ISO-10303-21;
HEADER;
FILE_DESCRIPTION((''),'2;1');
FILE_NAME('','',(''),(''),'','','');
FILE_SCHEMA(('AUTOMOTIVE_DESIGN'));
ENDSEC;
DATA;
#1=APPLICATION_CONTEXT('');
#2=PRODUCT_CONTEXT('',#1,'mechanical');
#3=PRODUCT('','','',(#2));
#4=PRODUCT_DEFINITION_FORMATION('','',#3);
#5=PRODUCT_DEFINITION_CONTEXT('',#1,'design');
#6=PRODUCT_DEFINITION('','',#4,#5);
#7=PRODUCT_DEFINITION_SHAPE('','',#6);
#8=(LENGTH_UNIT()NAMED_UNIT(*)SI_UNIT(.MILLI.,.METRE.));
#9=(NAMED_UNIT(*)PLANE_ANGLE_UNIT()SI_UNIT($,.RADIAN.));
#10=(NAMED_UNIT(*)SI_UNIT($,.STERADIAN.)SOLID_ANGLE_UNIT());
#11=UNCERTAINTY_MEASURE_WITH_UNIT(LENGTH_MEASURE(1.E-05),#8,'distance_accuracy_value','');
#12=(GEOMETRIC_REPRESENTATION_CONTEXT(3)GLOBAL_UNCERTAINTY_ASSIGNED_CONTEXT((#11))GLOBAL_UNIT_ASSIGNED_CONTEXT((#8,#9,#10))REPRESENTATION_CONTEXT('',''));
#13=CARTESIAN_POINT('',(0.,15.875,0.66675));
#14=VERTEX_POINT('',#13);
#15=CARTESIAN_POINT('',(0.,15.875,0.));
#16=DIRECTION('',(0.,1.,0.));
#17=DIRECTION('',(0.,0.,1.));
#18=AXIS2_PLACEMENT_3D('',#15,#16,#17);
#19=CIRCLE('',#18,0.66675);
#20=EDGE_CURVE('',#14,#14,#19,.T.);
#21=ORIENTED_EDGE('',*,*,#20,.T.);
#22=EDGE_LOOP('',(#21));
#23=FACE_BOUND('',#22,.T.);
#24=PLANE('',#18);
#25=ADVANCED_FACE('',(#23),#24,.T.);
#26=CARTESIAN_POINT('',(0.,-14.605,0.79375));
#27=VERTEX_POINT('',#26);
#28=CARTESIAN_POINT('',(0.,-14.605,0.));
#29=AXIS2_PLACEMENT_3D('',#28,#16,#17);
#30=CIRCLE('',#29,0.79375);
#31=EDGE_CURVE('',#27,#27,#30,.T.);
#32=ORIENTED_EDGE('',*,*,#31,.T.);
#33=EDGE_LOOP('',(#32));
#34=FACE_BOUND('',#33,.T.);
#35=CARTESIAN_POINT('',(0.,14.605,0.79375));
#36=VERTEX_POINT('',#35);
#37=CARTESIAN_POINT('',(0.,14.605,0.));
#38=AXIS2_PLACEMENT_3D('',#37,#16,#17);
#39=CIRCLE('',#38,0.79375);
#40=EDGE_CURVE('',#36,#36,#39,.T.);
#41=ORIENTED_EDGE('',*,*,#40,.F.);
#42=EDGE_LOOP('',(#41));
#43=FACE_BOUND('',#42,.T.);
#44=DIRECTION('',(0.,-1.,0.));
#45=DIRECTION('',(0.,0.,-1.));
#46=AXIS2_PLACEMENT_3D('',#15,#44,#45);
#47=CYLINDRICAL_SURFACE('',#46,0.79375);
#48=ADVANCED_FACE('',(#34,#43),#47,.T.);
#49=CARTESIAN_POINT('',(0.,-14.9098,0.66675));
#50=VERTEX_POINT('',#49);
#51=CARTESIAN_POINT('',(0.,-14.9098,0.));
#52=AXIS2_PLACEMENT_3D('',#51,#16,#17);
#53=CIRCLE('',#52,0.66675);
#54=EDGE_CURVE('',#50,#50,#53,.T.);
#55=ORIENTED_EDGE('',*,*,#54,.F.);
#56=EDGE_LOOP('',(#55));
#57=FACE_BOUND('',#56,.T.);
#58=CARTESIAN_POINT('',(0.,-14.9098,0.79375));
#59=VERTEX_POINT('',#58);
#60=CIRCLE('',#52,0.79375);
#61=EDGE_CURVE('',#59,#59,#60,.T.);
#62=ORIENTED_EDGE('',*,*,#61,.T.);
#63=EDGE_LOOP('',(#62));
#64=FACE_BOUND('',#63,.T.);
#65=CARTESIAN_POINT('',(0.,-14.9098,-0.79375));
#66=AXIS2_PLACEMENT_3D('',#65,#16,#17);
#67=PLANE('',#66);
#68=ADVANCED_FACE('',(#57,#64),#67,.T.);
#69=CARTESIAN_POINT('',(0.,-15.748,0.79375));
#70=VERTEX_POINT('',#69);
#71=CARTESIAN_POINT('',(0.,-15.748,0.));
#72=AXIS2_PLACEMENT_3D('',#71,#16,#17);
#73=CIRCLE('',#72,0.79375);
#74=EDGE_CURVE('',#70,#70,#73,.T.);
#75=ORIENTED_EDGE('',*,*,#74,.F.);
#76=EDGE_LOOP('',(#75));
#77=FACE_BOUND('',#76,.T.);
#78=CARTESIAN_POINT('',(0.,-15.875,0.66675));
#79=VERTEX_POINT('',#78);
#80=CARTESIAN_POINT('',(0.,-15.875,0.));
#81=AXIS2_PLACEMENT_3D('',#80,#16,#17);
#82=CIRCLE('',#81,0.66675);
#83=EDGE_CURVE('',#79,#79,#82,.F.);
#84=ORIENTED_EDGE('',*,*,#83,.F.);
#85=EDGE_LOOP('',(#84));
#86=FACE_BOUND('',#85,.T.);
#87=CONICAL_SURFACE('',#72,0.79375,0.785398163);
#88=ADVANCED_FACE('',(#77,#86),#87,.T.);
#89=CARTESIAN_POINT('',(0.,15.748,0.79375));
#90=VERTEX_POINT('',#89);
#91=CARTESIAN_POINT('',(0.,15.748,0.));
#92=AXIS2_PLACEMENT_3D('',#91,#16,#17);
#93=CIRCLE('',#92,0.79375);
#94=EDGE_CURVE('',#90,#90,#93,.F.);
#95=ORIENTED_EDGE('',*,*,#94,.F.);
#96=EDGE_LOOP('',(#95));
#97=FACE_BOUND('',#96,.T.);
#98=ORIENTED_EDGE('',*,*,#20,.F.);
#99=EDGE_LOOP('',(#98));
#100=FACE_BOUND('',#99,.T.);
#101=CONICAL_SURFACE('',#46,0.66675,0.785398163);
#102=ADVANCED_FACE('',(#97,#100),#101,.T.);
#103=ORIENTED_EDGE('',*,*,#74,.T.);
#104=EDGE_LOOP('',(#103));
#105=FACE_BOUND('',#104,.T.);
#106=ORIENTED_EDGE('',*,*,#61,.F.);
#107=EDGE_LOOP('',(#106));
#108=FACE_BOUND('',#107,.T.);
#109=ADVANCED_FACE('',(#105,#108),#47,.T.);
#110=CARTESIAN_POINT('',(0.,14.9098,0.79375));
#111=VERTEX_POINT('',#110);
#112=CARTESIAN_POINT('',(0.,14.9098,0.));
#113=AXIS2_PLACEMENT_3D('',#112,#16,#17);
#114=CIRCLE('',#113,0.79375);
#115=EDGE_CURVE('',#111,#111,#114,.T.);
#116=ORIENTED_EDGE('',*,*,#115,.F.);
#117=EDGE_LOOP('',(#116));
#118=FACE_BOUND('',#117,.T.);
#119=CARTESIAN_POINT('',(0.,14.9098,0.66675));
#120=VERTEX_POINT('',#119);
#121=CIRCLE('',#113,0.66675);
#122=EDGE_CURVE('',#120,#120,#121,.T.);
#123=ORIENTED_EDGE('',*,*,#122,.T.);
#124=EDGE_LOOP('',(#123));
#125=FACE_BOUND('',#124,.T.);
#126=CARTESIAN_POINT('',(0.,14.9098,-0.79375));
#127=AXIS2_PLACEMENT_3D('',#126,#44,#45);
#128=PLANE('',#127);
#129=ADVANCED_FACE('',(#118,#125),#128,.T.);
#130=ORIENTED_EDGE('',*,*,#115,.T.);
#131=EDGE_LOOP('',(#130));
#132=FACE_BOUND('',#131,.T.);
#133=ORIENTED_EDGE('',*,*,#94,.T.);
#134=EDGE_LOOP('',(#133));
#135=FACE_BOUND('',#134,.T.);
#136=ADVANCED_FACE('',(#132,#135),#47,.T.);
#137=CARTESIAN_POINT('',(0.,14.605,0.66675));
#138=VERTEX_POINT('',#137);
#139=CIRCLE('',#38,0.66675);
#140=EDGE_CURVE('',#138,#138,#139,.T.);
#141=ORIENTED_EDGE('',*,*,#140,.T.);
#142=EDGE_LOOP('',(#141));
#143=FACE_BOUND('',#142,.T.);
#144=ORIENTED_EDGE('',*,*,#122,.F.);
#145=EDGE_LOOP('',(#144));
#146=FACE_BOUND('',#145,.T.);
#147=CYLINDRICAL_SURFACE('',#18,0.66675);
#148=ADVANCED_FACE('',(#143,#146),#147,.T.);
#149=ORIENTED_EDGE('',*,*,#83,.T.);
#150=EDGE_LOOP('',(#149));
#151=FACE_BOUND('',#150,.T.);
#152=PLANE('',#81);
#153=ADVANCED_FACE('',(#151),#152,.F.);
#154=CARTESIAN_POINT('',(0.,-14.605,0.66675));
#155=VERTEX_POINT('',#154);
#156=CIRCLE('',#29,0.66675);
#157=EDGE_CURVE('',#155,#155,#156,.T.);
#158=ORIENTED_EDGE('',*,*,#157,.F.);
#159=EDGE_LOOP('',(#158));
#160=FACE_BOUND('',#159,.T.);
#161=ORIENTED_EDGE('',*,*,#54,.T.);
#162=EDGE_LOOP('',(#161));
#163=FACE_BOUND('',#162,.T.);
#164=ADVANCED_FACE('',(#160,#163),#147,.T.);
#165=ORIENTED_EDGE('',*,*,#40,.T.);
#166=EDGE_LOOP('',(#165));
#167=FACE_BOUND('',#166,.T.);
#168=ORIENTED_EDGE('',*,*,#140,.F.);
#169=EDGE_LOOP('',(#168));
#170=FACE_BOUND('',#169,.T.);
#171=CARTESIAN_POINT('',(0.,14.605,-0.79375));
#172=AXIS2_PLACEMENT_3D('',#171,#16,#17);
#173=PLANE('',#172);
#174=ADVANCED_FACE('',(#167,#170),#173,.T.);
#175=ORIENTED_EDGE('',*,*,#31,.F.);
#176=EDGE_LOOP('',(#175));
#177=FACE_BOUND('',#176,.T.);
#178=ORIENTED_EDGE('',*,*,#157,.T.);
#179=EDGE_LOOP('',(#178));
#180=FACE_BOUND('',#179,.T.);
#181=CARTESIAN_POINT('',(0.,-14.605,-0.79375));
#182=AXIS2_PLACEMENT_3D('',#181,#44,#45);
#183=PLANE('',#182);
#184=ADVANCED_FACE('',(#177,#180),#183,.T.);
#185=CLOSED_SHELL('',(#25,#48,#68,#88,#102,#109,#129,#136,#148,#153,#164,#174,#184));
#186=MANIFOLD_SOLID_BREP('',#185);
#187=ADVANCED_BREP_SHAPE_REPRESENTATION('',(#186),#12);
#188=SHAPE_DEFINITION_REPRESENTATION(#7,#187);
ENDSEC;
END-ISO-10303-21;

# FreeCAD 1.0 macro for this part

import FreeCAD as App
import Part
import Sketcher

V = App.Vector
Q = App.Units.Quantity


def edges_at(feature, points):
    """Names of the edges that pass closest to the given points."""
    edges = feature.Shape.Edges
    near = lambda p: min(range(len(edges)), key=lambda i: edges[i].distToShape(Part.Vertex(*p))[0])
    return sorted({f"Edge{near(p) + 1}" for p in points})


def add_polygon(sketch, points):
    """Adds a closed chain of lines whose ends are joined by coincident constraints."""
    first, n = sketch.GeometryCount, len(points)
    for a, b in zip(points, points[1:] + points[:1]):
        sketch.addGeometry(Part.LineSegment(App.Vector(*a, 0), App.Vector(*b, 0)), False)
    for i in range(n):
        sketch.addConstraint(Sketcher.Constraint("Coincident", first + i, 2, first + (i + 1) % n, 1))

doc = App.newDocument("Part")
body = doc.addObject("PartDesign::Body", "Body")

sketch1 = body.newObject("Sketcher::SketchObject", "Sketch")
sketch1.AttachmentSupport = (doc.getObject("XZ_Plane"), [""])
sketch1.MapMode = "FlatFace"
sketch1.addGeometry(Part.Circle(V(0, 0, 0), V(0, 0, 1), 0.8), False)
sketch1.addConstraint([
    Sketcher.Constraint("Coincident", 0, 3, -1, 1),
    Sketcher.Constraint("Diameter", 0, Q("0.0625 in")),
])
pad1 = body.newObject("PartDesign::Pad", "Pad")
pad1.Profile = sketch1
pad1.Length = Q("1.25 in")
pad1.Midplane = True

sketch2 = body.newObject("Sketcher::SketchObject", "Sketch001")
sketch2.AttachmentSupport = (doc.getObject("YZ_Plane"), [""])
sketch2.MapMode = "FlatFace"
add_polygon(sketch2, [(14.91, -0.67), (14.61, -0.67), (14.61, -0.79), (14.91, -0.79)])
add_polygon(sketch2, [(-14.61, -0.67), (-14.91, -0.67), (-14.91, -0.79), (-14.61, -0.79)])
sketch2.addConstraint([
    Sketcher.Constraint("Horizontal", 0),
    Sketcher.Constraint("Vertical", 1),
    Sketcher.Constraint("Horizontal", 2),
    Sketcher.Constraint("Vertical", 3),
    Sketcher.Constraint("Horizontal", 4),
    Sketcher.Constraint("Vertical", 5),
    Sketcher.Constraint("Horizontal", 6),
    Sketcher.Constraint("Vertical", 7),
    Sketcher.Constraint("Symmetric", 3, 2, 4, 2, -2),
    Sketcher.Constraint("Symmetric", 1, 2, 6, 2, -2),
    Sketcher.Constraint("DistanceX", 0, 2, 0, 1, Q("0.012 in")),
    Sketcher.Constraint("DistanceY", 1, 2, 1, 1, Q("0.005 in")),
    Sketcher.Constraint("DistanceX", 6, 2, 1, 2, Q("1.15 in")),
    Sketcher.Constraint("DistanceY", 1, 2, -1, 1, Q("0.03125 in")),
])
groove = body.newObject("PartDesign::Groove", "Groove")
groove.Profile = sketch2
groove.ReferenceAxis = (sketch2, ["H_Axis"])
groove.Angle = 360
doc.recompute()

chamfer = body.newObject("PartDesign::Chamfer", "Chamfer")
chamfer.Base = (groove, edges_at(groove, [(0, -15.875, -0.794), (0, 15.875, -0.794)]))
chamfer.Size = Q("0.005 in")

doc.recompute()
